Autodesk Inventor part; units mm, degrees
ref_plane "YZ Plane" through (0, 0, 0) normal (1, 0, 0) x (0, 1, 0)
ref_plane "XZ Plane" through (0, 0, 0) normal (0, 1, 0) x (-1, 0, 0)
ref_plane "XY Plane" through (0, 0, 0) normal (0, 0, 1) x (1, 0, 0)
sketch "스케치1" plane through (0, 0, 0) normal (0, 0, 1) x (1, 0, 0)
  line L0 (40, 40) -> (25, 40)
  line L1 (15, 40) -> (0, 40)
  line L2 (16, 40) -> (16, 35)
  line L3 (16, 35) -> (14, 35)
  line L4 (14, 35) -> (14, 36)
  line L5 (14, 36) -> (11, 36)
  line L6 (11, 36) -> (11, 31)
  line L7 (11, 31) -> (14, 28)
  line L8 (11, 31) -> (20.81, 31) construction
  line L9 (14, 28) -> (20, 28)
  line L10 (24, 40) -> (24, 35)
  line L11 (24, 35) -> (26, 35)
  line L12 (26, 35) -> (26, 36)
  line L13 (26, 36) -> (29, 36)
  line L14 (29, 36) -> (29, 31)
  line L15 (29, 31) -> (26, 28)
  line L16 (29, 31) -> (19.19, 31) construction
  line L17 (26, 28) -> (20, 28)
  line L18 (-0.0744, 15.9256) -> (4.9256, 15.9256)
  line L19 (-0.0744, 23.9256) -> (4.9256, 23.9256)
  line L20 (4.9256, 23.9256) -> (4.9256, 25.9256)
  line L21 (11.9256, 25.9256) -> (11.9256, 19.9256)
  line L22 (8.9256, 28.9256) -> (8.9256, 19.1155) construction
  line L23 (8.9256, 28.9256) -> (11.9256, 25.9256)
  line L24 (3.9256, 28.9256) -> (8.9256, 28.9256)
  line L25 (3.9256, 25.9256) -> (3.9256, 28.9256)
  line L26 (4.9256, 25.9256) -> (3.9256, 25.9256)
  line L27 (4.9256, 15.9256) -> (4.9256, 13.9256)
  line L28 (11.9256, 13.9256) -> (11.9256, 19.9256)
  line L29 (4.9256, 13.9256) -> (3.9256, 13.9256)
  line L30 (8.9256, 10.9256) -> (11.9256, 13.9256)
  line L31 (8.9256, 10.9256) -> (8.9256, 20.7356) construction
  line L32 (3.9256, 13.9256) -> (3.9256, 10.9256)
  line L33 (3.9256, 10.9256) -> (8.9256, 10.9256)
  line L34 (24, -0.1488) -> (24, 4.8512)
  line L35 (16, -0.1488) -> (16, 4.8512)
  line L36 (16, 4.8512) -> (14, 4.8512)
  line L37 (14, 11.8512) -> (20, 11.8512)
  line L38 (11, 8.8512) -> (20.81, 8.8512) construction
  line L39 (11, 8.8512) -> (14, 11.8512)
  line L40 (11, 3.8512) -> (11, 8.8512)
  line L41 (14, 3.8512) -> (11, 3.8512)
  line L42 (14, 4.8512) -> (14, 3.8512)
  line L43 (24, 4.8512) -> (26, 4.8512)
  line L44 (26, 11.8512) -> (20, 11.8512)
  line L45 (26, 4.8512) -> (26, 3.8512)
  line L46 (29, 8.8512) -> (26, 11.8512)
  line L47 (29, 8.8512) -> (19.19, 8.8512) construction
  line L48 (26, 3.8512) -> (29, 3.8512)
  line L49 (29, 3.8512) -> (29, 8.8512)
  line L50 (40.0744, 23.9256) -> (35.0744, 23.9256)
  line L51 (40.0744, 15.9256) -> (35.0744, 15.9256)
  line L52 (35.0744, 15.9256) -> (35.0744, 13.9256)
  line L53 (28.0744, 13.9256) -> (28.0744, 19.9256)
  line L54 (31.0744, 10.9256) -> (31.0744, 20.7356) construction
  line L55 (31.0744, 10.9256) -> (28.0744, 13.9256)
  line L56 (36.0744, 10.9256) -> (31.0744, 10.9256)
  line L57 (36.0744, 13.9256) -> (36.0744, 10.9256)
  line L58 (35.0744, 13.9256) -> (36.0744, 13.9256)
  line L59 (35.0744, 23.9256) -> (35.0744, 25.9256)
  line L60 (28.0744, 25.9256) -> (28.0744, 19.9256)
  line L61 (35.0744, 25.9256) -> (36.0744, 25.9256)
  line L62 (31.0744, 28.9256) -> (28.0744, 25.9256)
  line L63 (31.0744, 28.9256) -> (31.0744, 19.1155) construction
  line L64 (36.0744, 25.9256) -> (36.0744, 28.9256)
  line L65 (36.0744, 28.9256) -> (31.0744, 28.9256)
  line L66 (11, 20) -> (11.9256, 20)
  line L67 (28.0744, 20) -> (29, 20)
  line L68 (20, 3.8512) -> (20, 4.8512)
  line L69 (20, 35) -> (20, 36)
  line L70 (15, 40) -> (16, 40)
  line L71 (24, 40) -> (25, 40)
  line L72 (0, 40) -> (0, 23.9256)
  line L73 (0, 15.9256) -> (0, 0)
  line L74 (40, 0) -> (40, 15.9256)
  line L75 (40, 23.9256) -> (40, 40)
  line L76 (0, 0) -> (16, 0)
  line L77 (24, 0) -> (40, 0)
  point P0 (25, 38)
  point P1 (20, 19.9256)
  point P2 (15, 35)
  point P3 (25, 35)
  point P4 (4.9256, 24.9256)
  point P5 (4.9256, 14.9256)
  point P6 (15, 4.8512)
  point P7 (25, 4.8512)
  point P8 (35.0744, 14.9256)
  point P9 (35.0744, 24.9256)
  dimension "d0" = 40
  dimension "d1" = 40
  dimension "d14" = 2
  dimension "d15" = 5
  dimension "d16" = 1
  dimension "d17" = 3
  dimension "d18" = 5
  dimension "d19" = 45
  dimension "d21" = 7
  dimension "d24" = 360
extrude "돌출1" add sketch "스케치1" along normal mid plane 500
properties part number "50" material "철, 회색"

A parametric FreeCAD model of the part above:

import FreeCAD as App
import Part
import Sketcher

V = App.Vector
Q = App.Units.Quantity

doc = App.newDocument("Part")
body = doc.addObject("PartDesign::Body", "Body")

# Sketch on XY plane
sketch1 = body.newObject("Sketcher::SketchObject", "Sketch")
sketch1.AttachmentSupport = (doc.getObject("XY_Plane"), [""])
sketch1.MapMode = "FlatFace"
sketch1.addGeometry([
    Part.LineSegment(V(40, 23.9256, 0), V(40, 40, 0)),  # 0
    Part.LineSegment(V(40, 40, 0), V(24, 40, 0)),  # 1
    Part.LineSegment(V(24, 40, 0), V(24, 35, 0)),  # 2
    Part.LineSegment(V(24, 35, 0), V(26, 35, 0)),  # 3
    Part.LineSegment(V(26, 35, 0), V(26, 36, 0)),  # 4
    Part.LineSegment(V(26, 36, 0), V(29, 36, 0)),  # 5
    Part.LineSegment(V(29, 36, 0), V(29, 31, 0)),  # 6
    Part.LineSegment(V(29, 31, 0), V(26, 28, 0)),  # 7
    Part.LineSegment(V(26, 28, 0), V(14, 28, 0)),  # 8
    Part.LineSegment(V(14, 28, 0), V(11, 31, 0)),  # 9
    Part.LineSegment(V(11, 31, 0), V(11, 36, 0)),  # 10
    Part.LineSegment(V(11, 36, 0), V(14, 36, 0)),  # 11
    Part.LineSegment(V(14, 36, 0), V(14, 35, 0)),  # 12
    Part.LineSegment(V(14, 35, 0), V(16, 35, 0)),  # 13
    Part.LineSegment(V(16, 35, 0), V(16, 40, 0)),  # 14
    Part.LineSegment(V(16, 40, 0), V(0, 40, 0)),  # 15
    Part.LineSegment(V(0, 40, 0), V(0, 23.9256, 0)),  # 16
    Part.LineSegment(V(0, 23.9256, 0), V(4.9256, 23.9256, 0)),  # 17
    Part.LineSegment(V(4.9256, 23.9256, 0), V(4.9256, 25.9256, 0)),  # 18
    Part.LineSegment(V(4.9256, 25.9256, 0), V(3.9256, 25.9256, 0)),  # 19
    Part.LineSegment(V(3.9256, 25.9256, 0), V(3.9256, 28.9256, 0)),  # 20
    Part.LineSegment(V(3.9256, 28.9256, 0), V(8.9256, 28.9256, 0)),  # 21
    Part.LineSegment(V(8.9256, 28.9256, 0), V(11.9256, 25.9256, 0)),  # 22
    Part.LineSegment(V(11.9256, 25.9256, 0), V(11.9256, 13.9256, 0)),  # 23
    Part.LineSegment(V(11.9256, 13.9256, 0), V(8.9256, 10.9256, 0)),  # 24
    Part.LineSegment(V(8.9256, 10.9256, 0), V(3.9256, 10.9256, 0)),  # 25
    Part.LineSegment(V(3.9256, 10.9256, 0), V(3.9256, 13.9256, 0)),  # 26
    Part.LineSegment(V(3.9256, 13.9256, 0), V(4.9256, 13.9256, 0)),  # 27
    Part.LineSegment(V(4.9256, 13.9256, 0), V(4.9256, 15.9256, 0)),  # 28
    Part.LineSegment(V(4.9256, 15.9256, 0), V(0, 15.9256, 0)),  # 29
    Part.LineSegment(V(0, 15.9256, 0), V(0, 0, 0)),  # 30
    Part.LineSegment(V(0, 0, 0), V(16, 0, 0)),  # 31
    Part.LineSegment(V(16, 0, 0), V(16, 4.8512, 0)),  # 32
    Part.LineSegment(V(16, 4.8512, 0), V(14, 4.8512, 0)),  # 33
    Part.LineSegment(V(14, 4.8512, 0), V(14, 3.8512, 0)),  # 34
    Part.LineSegment(V(14, 3.8512, 0), V(11, 3.8512, 0)),  # 35
    Part.LineSegment(V(11, 3.8512, 0), V(11, 8.8512, 0)),  # 36
    Part.LineSegment(V(11, 8.8512, 0), V(14, 11.8512, 0)),  # 37
    Part.LineSegment(V(14, 11.8512, 0), V(26, 11.8512, 0)),  # 38
    Part.LineSegment(V(26, 11.8512, 0), V(29, 8.8512, 0)),  # 39
    Part.LineSegment(V(29, 8.8512, 0), V(29, 3.8512, 0)),  # 40
    Part.LineSegment(V(29, 3.8512, 0), V(26, 3.8512, 0)),  # 41
    Part.LineSegment(V(26, 3.8512, 0), V(26, 4.8512, 0)),  # 42
    Part.LineSegment(V(26, 4.8512, 0), V(24, 4.8512, 0)),  # 43
    Part.LineSegment(V(24, 4.8512, 0), V(24, 0, 0)),  # 44
    Part.LineSegment(V(24, 0, 0), V(40, 0, 0)),  # 45
    Part.LineSegment(V(40, 0, 0), V(40, 15.9256, 0)),  # 46
    Part.LineSegment(V(40, 15.9256, 0), V(35.0744, 15.9256, 0)),  # 47
    Part.LineSegment(V(35.0744, 15.9256, 0), V(35.0744, 13.9256, 0)),  # 48
    Part.LineSegment(V(35.0744, 13.9256, 0), V(36.0744, 13.9256, 0)),  # 49
    Part.LineSegment(V(36.0744, 13.9256, 0), V(36.0744, 10.9256, 0)),  # 50
    Part.LineSegment(V(36.0744, 10.9256, 0), V(31.0744, 10.9256, 0)),  # 51
    Part.LineSegment(V(31.0744, 10.9256, 0), V(28.0744, 13.9256, 0)),  # 52
    Part.LineSegment(V(28.0744, 13.9256, 0), V(28.0744, 25.9256, 0)),  # 53
    Part.LineSegment(V(28.0744, 25.9256, 0), V(31.0744, 28.9256, 0)),  # 54
    Part.LineSegment(V(31.0744, 28.9256, 0), V(36.0744, 28.9256, 0)),  # 55
    Part.LineSegment(V(36.0744, 28.9256, 0), V(36.0744, 25.9256, 0)),  # 56
    Part.LineSegment(V(36.0744, 25.9256, 0), V(35.0744, 25.9256, 0)),  # 57
    Part.LineSegment(V(35.0744, 25.9256, 0), V(35.0744, 23.9256, 0)),  # 58
    Part.LineSegment(V(35.0744, 23.9256, 0), V(40, 23.9256, 0)),  # 59
], False)
sketch1.addConstraint([
    Sketcher.Constraint("Coincident", 0, 2, 1, 1),
    Sketcher.Constraint("Coincident", 1, 2, 2, 1),
    Sketcher.Constraint("Coincident", 2, 2, 3, 1),
    Sketcher.Constraint("Coincident", 3, 2, 4, 1),
    Sketcher.Constraint("Coincident", 4, 2, 5, 1),
    Sketcher.Constraint("Coincident", 5, 2, 6, 1),
    Sketcher.Constraint("Coincident", 6, 2, 7, 1),
    Sketcher.Constraint("Coincident", 7, 2, 8, 1),
    Sketcher.Constraint("Coincident", 8, 2, 9, 1),
    Sketcher.Constraint("Coincident", 9, 2, 10, 1),
    Sketcher.Constraint("Coincident", 10, 2, 11, 1),
    Sketcher.Constraint("Coincident", 11, 2, 12, 1),
    Sketcher.Constraint("Coincident", 12, 2, 13, 1),
    Sketcher.Constraint("Coincident", 13, 2, 14, 1),
    Sketcher.Constraint("Coincident", 14, 2, 15, 1),
    Sketcher.Constraint("Coincident", 15, 2, 16, 1),
    Sketcher.Constraint("Coincident", 16, 2, 17, 1),
    Sketcher.Constraint("Coincident", 17, 2, 18, 1),
    Sketcher.Constraint("Coincident", 18, 2, 19, 1),
    Sketcher.Constraint("Coincident", 19, 2, 20, 1),
    Sketcher.Constraint("Coincident", 20, 2, 21, 1),
    Sketcher.Constraint("Coincident", 21, 2, 22, 1),
    Sketcher.Constraint("Coincident", 22, 2, 23, 1),
    Sketcher.Constraint("Coincident", 23, 2, 24, 1),
    Sketcher.Constraint("Coincident", 24, 2, 25, 1),
    Sketcher.Constraint("Coincident", 25, 2, 26, 1),
    Sketcher.Constraint("Coincident", 26, 2, 27, 1),
    Sketcher.Constraint("Coincident", 27, 2, 28, 1),
    Sketcher.Constraint("Coincident", 28, 2, 29, 1),
    Sketcher.Constraint("Coincident", 29, 2, 30, 1),
    Sketcher.Constraint("Coincident", 30, 2, 31, 1),
    Sketcher.Constraint("Coincident", 31, 2, 32, 1),
    Sketcher.Constraint("Coincident", 32, 2, 33, 1),
    Sketcher.Constraint("Coincident", 33, 2, 34, 1),
    Sketcher.Constraint("Coincident", 34, 2, 35, 1),
    Sketcher.Constraint("Coincident", 35, 2, 36, 1),
    Sketcher.Constraint("Coincident", 36, 2, 37, 1),
    Sketcher.Constraint("Coincident", 37, 2, 38, 1),
    Sketcher.Constraint("Coincident", 38, 2, 39, 1),
    Sketcher.Constraint("Coincident", 39, 2, 40, 1),
    Sketcher.Constraint("Coincident", 40, 2, 41, 1),
    Sketcher.Constraint("Coincident", 41, 2, 42, 1),
    Sketcher.Constraint("Coincident", 42, 2, 43, 1),
    Sketcher.Constraint("Coincident", 43, 2, 44, 1),
    Sketcher.Constraint("Coincident", 44, 2, 45, 1),
    Sketcher.Constraint("Coincident", 45, 2, 46, 1),
    Sketcher.Constraint("Coincident", 46, 2, 47, 1),
    Sketcher.Constraint("Coincident", 47, 2, 48, 1),
    Sketcher.Constraint("Coincident", 48, 2, 49, 1),
    Sketcher.Constraint("Coincident", 49, 2, 50, 1),
    Sketcher.Constraint("Coincident", 50, 2, 51, 1),
    Sketcher.Constraint("Coincident", 51, 2, 52, 1),
    Sketcher.Constraint("Coincident", 52, 2, 53, 1),
    Sketcher.Constraint("Coincident", 53, 2, 54, 1),
    Sketcher.Constraint("Coincident", 54, 2, 55, 1),
    Sketcher.Constraint("Coincident", 55, 2, 56, 1),
    Sketcher.Constraint("Coincident", 56, 2, 57, 1),
    Sketcher.Constraint("Coincident", 57, 2, 58, 1),
    Sketcher.Constraint("Coincident", 58, 2, 59, 1),
    Sketcher.Constraint("Coincident", 59, 2, 0, 1),
    Sketcher.Constraint("Vertical", 0),
    Sketcher.Constraint("Horizontal", 1),
    Sketcher.Constraint("Vertical", 2),
    Sketcher.Constraint("Horizontal", 3),
    Sketcher.Constraint("Vertical", 4),
    Sketcher.Constraint("Horizontal", 5),
    Sketcher.Constraint("Vertical", 6),
    Sketcher.Constraint("Horizontal", 8),
    Sketcher.Constraint("Vertical", 10),
    Sketcher.Constraint("Horizontal", 11),
    Sketcher.Constraint("Vertical", 12),
    Sketcher.Constraint("Horizontal", 13),
    Sketcher.Constraint("Vertical", 14),
    Sketcher.Constraint("Horizontal", 15),
    Sketcher.Constraint("Vertical", 16),
    Sketcher.Constraint("Horizontal", 17),
    Sketcher.Constraint("Vertical", 18),
    Sketcher.Constraint("Horizontal", 19),
    Sketcher.Constraint("Vertical", 20),
    Sketcher.Constraint("Horizontal", 21),
    Sketcher.Constraint("Vertical", 23),
    Sketcher.Constraint("Horizontal", 25),
    Sketcher.Constraint("Vertical", 26),
    Sketcher.Constraint("Horizontal", 27),
    Sketcher.Constraint("Vertical", 28),
    Sketcher.Constraint("Horizontal", 29),
    Sketcher.Constraint("Vertical", 30),
    Sketcher.Constraint("Horizontal", 31),
    Sketcher.Constraint("Vertical", 32),
    Sketcher.Constraint("Horizontal", 33),
    Sketcher.Constraint("Vertical", 34),
    Sketcher.Constraint("Horizontal", 35),
    Sketcher.Constraint("Vertical", 36),
    Sketcher.Constraint("Horizontal", 38),
    Sketcher.Constraint("Vertical", 40),
    Sketcher.Constraint("Horizontal", 41),
    Sketcher.Constraint("Vertical", 42),
    Sketcher.Constraint("Horizontal", 43),
    Sketcher.Constraint("Vertical", 44),
    Sketcher.Constraint("Horizontal", 45),
    Sketcher.Constraint("Vertical", 46),
    Sketcher.Constraint("Horizontal", 47),
    Sketcher.Constraint("Vertical", 48),
    Sketcher.Constraint("Horizontal", 49),
    Sketcher.Constraint("Vertical", 50),
    Sketcher.Constraint("Horizontal", 51),
    Sketcher.Constraint("Vertical", 53),
    Sketcher.Constraint("Horizontal", 55),
    Sketcher.Constraint("Vertical", 56),
    Sketcher.Constraint("Horizontal", 57),
    Sketcher.Constraint("Vertical", 58),
    Sketcher.Constraint("Horizontal", 59),
    Sketcher.Constraint("Coincident", 30, 2, -1, 1),
    Sketcher.Constraint("PointOnObject", 15, 2, -2),
    Sketcher.Constraint("PointOnObject", 44, 2, -1),
    Sketcher.Constraint("Perpendicular", 7, 9),
    Sketcher.Constraint("Parallel", 9, 22),
    Sketcher.Constraint("Perpendicular", 22, 24),
    Sketcher.Constraint("Parallel", 24, 37),
    Sketcher.Constraint("Perpendicular", 37, 39),
    Sketcher.Constraint("Parallel", 39, 52),
    Sketcher.Constraint("Perpendicular", 52, 54),
    Sketcher.Constraint("Horizontal", 6, 2, 9, 2),
    Sketcher.Constraint("Horizontal", 5, 2, 10, 2),
    Sketcher.Constraint("Horizontal", 3, 2, 12, 2),
    Sketcher.Constraint("Horizontal", 1, 2, 14, 2),
    Sketcher.Constraint("Horizontal", 19, 2, 22, 2),
    Sketcher.Constraint("Horizontal", 23, 2, 26, 2),
    Sketcher.Constraint("Horizontal", 36, 2, 39, 2),
    Sketcher.Constraint("Horizontal", 35, 2, 40, 2),
    Sketcher.Constraint("Horizontal", 33, 2, 42, 2),
    Sketcher.Constraint("Horizontal", 29, 2, 46, 2),
    Sketcher.Constraint("Horizontal", 27, 2, 48, 2),
    Sketcher.Constraint("Horizontal", 25, 2, 50, 2),
    Sketcher.Constraint("Horizontal", 49, 2, 52, 2),
    Sketcher.Constraint("Horizontal", 22, 2, 53, 2),
    Sketcher.Constraint("Horizontal", 21, 2, 54, 2),
    Sketcher.Constraint("Horizontal", 53, 2, 56, 2),
    Sketcher.Constraint("Horizontal", 17, 2, 58, 2),
    Sketcher.Constraint("Vertical", 4, 2, 7, 2),
    Sketcher.Constraint("Vertical", 8, 2, 11, 2),
    Sketcher.Constraint("Vertical", 21, 2, 24, 2),
    Sketcher.Constraint("Vertical", 20, 2, 25, 2),
    Sketcher.Constraint("Vertical", 18, 2, 27, 2),
    Sketcher.Constraint("Vertical", 14, 2, 31, 2),
    Sketcher.Constraint("Vertical", 12, 2, 33, 2),
    Sketcher.Constraint("Vertical", 10, 2, 35, 2),
    Sketcher.Constraint("Vertical", 34, 2, 37, 2),
    Sketcher.Constraint("Vertical", 7, 2, 38, 2),
    Sketcher.Constraint("Vertical", 6, 2, 39, 2),
    Sketcher.Constraint("Vertical", 38, 2, 41, 2),
    Sketcher.Constraint("Vertical", 2, 2, 43, 2),
    Sketcher.Constraint("Vertical", 0, 2, 45, 2),
    Sketcher.Constraint("Vertical", 50, 2, 55, 2),
    Sketcher.Constraint("Vertical", 48, 2, 57, 2),
    Sketcher.Constraint("Equal", 3, 13),
    Sketcher.Constraint("Equal", 1, 15),
    Sketcher.Constraint("Equal", 29, 47),
    Sketcher.Constraint("Equal", 27, 49),
    Sketcher.Constraint("Equal", 25, 51),
    Sketcher.Constraint("Equal", 55, 2),
    Sketcher.Constraint("Equal", 57, 4),
    Sketcher.Constraint("Equal", 2, 6),
    Sketcher.Constraint("Equal", 43, 18),
    Sketcher.Constraint("Equal", 41, 20),
    Sketcher.Constraint("Equal", 38, 23),
    Sketcher.Constraint("Equal", 18, 28),
    Sketcher.Constraint("Equal", 12, 34),
    Sketcher.Constraint("Equal", 14, 36),
    Sketcher.Constraint("DistanceX", 3, 1, 3, 2, Q("2 mm")),
    Sketcher.Constraint("DistanceX", 5, 1, 5, 2, Q("3 mm")),
    Sketcher.Constraint("DistanceX", 19, 2, 19, 1, Q("1 mm")),
    Sketcher.Constraint("DistanceX", 21, 1, 21, 2, Q("5 mm")),
    Sketcher.Constraint("DistanceX", -1, 1, 0, 2, Q("40 mm")),
    Sketcher.Constraint("DistanceY", -1, 1, 0, 2, Q("40 mm")),
    Sketcher.Constraint("DistanceX", 1, 2, 1, 1, Q("16 mm")),
    Sketcher.Constraint("DistanceX", 17, 1, 17, 2, Q("4.9256 mm")),
    Sketcher.Constraint("DistanceY", 0, 1, 0, 2, Q("16.0744 mm")),
    Sketcher.Constraint("DistanceY", 32, 1, 32, 2, Q("4.8512 mm")),
])
pad1 = body.newObject("PartDesign::Pad", "Pad")
pad1.Profile = sketch1
pad1.Length = 500
pad1.Midplane = True

doc.recompute()
